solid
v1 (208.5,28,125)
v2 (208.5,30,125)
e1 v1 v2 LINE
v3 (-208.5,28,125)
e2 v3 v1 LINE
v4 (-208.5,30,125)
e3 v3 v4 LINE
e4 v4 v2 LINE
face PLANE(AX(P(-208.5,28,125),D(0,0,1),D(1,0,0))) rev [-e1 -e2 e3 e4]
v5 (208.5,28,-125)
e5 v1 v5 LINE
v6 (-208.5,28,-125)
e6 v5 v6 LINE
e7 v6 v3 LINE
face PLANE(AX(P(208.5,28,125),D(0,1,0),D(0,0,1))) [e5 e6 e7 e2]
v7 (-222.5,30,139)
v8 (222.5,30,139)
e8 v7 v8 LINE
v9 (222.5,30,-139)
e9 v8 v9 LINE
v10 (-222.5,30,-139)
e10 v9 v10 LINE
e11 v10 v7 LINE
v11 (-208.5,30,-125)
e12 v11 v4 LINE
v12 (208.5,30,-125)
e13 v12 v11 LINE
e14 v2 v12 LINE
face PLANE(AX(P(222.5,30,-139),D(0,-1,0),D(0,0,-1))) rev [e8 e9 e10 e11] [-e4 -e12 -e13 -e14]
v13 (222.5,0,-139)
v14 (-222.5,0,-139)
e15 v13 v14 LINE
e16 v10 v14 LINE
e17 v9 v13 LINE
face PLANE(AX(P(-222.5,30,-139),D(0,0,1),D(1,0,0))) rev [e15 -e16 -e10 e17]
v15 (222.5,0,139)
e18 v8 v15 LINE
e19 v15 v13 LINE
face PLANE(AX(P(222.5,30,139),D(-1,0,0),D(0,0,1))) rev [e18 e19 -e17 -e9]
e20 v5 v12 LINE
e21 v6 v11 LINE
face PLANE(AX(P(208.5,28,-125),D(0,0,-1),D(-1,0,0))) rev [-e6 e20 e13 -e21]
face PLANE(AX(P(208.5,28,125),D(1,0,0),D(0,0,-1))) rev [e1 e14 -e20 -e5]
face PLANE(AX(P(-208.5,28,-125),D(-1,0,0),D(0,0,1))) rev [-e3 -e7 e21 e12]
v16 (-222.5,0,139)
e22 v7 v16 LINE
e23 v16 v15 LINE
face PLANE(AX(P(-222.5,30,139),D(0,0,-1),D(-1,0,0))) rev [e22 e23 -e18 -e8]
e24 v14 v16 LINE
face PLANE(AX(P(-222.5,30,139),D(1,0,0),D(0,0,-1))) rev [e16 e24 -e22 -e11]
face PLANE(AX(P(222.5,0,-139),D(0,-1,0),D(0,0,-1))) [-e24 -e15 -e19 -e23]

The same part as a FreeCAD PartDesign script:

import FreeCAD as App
import Part
import Sketcher

V = App.Vector


def add_polygon(sketch, points):
    """Adds a closed chain of lines whose ends are joined by coincident constraints."""
    first, n = sketch.GeometryCount, len(points)
    for a, b in zip(points, points[1:] + points[:1]):
        sketch.addGeometry(Part.LineSegment(App.Vector(*a, 0), App.Vector(*b, 0)), False)
    for i in range(n):
        sketch.addConstraint(Sketcher.Constraint("Coincident", first + i, 2, first + (i + 1) % n, 1))

doc = App.newDocument("Part")
params = doc.addObject("Spreadsheet::Sheet", "Params")
for row, (alias, value) in enumerate([
    ("sketch1_width", "445 mm"),
    ("sketch1_height", "278 mm"),
    ("pad1_length", "30 mm"),
    ("sketch2_width", "417 mm"),
    ("sketch2_height", "250 mm"),
    ("pocket1_length", "2 mm"),
], start=1):
    params.set(f"A{row}", alias)
    params.set(f"B{row}", "=" + value)
    params.setAlias(f"B{row}", alias)

body = doc.addObject("PartDesign::Body", "Body")

# Sketch on XZ plane
sketch1 = doc.addObject("Sketcher::SketchObject", "Sketch")
body.addObject(sketch1)
sketch1.AttachmentSupport = (doc.XZ_Plane, [""])
sketch1.MapMode = "FlatFace"
add_polygon(sketch1, [(-222, -139), (-222, 139), (222, 139), (222, -139)])  # lines 0-3
sketch1.addConstraint(Sketcher.Constraint("Vertical", 0))
sketch1.addConstraint(Sketcher.Constraint("Horizontal", 1))
sketch1.addConstraint(Sketcher.Constraint("Vertical", 2))
sketch1.addConstraint(Sketcher.Constraint("Horizontal", 3))
sketch1.addConstraint(Sketcher.Constraint("Symmetric", 0, 2, 2, 2, -1, 1))
sketch1.addConstraint(Sketcher.Constraint("DistanceX", 1, 1, 1, 2, 445.0))
sketch1.addConstraint(Sketcher.Constraint("DistanceY", 0, 1, 0, 2, 278.0))
sketch1.setExpression("Constraints[9]", "Params.sketch1_width")
sketch1.setExpression("Constraints[10]", "Params.sketch1_height")
pad1 = doc.addObject("PartDesign::Pad", "Pad")
body.addObject(pad1)
pad1.Profile = sketch1
pad1.setExpression("Length", "Params.pad1_length")
pad1.Reversed = True

# Sketch on XZ plane
sketch2 = doc.addObject("Sketcher::SketchObject", "Sketch001")
body.addObject(sketch2)
sketch2.AttachmentSupport = (doc.XZ_Plane, [""])
sketch2.MapMode = "FlatFace"
sketch2.AttachmentOffset = App.Placement(V(0, 0, -30), App.Rotation())
add_polygon(sketch2, [(-208, -125), (-208, 125), (208, 125), (208, -125)])  # lines 0-3
sketch2.addConstraint(Sketcher.Constraint("Vertical", 0))
sketch2.addConstraint(Sketcher.Constraint("Horizontal", 1))
sketch2.addConstraint(Sketcher.Constraint("Vertical", 2))
sketch2.addConstraint(Sketcher.Constraint("Horizontal", 3))
sketch2.addConstraint(Sketcher.Constraint("Symmetric", 0, 2, 2, 2, -1, 1))
sketch2.addConstraint(Sketcher.Constraint("DistanceX", 1, 1, 1, 2, 417.0))
sketch2.addConstraint(Sketcher.Constraint("DistanceY", 0, 1, 0, 2, 250.0))
sketch2.setExpression("Constraints[9]", "Params.sketch2_width")
sketch2.setExpression("Constraints[10]", "Params.sketch2_height")
pocket1 = doc.addObject("PartDesign::Pocket", "Pocket")
body.addObject(pocket1)
pocket1.Profile = sketch2
pocket1.setExpression("Length", "Params.pocket1_length")
pocket1.Reversed = True

doc.recompute()
